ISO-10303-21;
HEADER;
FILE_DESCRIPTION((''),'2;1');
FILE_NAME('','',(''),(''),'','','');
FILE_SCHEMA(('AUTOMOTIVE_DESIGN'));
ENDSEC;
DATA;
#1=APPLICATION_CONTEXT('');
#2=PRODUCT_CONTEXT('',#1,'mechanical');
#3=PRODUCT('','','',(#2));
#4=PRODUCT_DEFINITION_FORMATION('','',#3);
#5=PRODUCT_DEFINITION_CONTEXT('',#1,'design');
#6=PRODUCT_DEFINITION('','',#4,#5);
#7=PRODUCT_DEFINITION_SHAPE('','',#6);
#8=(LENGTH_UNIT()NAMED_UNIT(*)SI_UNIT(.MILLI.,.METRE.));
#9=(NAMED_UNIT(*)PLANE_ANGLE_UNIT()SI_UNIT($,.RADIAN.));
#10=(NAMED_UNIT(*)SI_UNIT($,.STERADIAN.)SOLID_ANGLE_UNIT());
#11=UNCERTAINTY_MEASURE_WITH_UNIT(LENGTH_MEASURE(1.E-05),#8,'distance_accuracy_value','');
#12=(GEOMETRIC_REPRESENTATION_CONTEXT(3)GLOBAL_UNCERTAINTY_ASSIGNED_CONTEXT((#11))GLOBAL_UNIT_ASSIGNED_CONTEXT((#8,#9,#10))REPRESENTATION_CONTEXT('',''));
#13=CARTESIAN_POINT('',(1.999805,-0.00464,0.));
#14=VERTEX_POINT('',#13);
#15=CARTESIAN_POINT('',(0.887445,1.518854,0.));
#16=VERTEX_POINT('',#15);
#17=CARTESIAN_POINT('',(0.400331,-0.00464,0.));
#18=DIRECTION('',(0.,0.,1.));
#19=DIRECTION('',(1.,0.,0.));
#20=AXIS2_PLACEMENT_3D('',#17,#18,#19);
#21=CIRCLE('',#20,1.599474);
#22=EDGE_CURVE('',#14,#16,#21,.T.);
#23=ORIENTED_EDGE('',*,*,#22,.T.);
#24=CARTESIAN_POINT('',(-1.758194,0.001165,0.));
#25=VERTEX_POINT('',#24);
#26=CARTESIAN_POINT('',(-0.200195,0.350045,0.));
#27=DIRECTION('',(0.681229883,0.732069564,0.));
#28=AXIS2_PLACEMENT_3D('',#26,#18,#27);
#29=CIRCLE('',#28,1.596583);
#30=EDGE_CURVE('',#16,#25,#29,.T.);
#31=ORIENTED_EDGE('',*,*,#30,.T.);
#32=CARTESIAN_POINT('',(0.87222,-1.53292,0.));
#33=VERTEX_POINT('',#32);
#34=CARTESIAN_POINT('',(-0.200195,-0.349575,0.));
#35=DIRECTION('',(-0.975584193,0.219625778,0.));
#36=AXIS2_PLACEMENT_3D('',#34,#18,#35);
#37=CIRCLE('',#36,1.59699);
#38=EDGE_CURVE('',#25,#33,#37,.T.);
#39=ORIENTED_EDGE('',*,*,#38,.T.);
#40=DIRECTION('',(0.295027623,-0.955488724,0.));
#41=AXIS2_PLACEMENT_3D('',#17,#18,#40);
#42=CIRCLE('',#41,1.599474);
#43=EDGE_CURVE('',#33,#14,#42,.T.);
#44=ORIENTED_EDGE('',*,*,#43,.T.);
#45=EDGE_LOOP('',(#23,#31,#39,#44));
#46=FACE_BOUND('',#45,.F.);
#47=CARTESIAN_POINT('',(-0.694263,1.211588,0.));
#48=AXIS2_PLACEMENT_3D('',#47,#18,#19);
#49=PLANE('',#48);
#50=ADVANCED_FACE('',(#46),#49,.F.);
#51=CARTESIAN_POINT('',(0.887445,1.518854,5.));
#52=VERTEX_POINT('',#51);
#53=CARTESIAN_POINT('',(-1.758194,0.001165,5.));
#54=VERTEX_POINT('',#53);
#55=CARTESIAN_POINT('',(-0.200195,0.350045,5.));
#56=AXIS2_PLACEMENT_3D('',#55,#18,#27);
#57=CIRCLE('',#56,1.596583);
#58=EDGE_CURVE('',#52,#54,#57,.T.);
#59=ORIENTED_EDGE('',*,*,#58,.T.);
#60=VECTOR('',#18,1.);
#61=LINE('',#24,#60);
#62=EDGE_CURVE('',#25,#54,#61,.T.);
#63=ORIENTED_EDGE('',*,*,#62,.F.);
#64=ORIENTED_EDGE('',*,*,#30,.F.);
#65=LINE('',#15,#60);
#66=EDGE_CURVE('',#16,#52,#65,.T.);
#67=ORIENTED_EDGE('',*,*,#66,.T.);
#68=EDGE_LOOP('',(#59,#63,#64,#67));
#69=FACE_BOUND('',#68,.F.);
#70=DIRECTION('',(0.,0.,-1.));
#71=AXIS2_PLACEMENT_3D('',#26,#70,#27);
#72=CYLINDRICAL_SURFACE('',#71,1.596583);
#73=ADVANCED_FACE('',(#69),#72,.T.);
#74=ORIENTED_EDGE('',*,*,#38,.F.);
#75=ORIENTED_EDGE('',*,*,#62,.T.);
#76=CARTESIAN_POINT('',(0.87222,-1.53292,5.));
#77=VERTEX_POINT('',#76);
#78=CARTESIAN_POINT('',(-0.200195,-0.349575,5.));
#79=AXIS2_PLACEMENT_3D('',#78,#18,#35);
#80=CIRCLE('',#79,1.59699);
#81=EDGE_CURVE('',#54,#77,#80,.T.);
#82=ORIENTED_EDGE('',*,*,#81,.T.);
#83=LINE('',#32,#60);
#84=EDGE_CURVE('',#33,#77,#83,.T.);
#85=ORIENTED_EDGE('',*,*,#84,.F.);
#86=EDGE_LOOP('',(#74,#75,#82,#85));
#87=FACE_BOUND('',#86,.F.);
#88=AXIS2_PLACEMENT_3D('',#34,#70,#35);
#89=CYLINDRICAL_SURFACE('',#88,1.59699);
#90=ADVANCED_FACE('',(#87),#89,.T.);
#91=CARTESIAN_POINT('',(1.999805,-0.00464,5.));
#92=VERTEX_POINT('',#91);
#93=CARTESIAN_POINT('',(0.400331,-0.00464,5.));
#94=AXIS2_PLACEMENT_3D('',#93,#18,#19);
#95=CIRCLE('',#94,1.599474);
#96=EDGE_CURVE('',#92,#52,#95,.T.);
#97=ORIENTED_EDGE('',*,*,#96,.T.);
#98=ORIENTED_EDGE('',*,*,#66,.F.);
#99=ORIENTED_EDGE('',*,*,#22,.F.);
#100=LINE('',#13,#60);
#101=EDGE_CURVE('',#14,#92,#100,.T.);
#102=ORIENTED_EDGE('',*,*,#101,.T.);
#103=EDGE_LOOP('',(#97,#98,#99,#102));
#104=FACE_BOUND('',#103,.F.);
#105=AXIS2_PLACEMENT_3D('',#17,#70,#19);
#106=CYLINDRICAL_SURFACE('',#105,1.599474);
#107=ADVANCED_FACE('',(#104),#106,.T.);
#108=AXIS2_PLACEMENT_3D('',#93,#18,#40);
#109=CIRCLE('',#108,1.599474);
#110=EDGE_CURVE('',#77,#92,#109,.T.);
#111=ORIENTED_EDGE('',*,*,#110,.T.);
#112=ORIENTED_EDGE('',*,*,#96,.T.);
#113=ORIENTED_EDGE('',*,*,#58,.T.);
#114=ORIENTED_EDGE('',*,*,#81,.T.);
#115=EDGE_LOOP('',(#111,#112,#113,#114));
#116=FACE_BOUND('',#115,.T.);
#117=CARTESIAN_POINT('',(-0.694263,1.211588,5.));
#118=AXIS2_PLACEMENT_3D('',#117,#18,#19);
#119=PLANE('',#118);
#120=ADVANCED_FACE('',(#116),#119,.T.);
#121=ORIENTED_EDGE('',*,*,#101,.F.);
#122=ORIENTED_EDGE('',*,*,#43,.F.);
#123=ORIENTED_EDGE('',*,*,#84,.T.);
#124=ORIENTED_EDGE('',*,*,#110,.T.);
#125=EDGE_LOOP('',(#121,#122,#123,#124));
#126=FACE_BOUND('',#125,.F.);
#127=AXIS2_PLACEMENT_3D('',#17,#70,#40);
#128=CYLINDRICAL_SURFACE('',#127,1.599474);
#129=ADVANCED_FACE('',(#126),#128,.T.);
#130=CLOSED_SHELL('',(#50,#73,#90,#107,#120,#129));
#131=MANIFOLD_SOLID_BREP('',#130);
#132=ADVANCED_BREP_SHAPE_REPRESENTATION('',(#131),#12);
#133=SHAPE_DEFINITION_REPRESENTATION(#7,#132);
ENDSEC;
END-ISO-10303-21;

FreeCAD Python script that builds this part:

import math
import FreeCAD as App
import Part
import Sketcher
from FreeCAD import Vector
Q = App.Units.Quantity

doc = App.newDocument("Part")
body = doc.addObject("PartDesign::Body", "Body")

# Sketch on XY plane
sketch1 = body.newObject("Sketcher::SketchObject", "Sketch")
sketch1.AttachmentSupport = (doc.getObject("XY_Plane"), [""])
sketch1.MapMode = "FlatFace"
sketch1.addGeometry([
    Part.ArcOfCircle(Part.Circle(Vector(-0.2, -0.3, 0), Vector(0, 0, 1), 1.6), math.radians(167), math.radians(312)),
    Part.ArcOfCircle(Part.Circle(Vector(0.4, 0, 0), Vector(0, 0, 1), 1.6), math.radians(-73), math.radians(0)),
    Part.ArcOfCircle(Part.Circle(Vector(0.4, 0, 0), Vector(0, 0, 1), 1.6), math.radians(0), math.radians(72)),
    Part.ArcOfCircle(Part.Circle(Vector(-0.2, 0.4, 0), Vector(0, 0, 1), 1.6), math.radians(47), math.radians(193)),
], False)
sketch1.addConstraint([
    Sketcher.Constraint("Coincident", 0, 2, 1, 1),
    Sketcher.Constraint("Tangent", 1, 2, 2, 1),
    Sketcher.Constraint("Coincident", 2, 2, 3, 1),
    Sketcher.Constraint("Coincident", 3, 2, 0, 1),
    Sketcher.Constraint("Equal", 1, 2),
    Sketcher.Constraint("Horizontal", 2, 3, 1, 2),
    Sketcher.Constraint("Vertical", 0, 3, 3, 3),
    Sketcher.Constraint("DistanceX", 0, 3, 1, 2, Q("2.2 mm")),
    Sketcher.Constraint("Radius", 0, Q("1.59699 mm")),
    Sketcher.Constraint("Radius", 1, Q("1.599474 mm")),
    Sketcher.Constraint("Radius", 3, Q("1.596583 mm")),
    Sketcher.Constraint("DistanceX", 3, 2, 3, 3, Q("1.557999 mm")),
    Sketcher.Constraint("DistanceX", -1, 1, 1, 3, Q("0.400331 mm")),
    Sketcher.Constraint("DistanceY", 1, 3, -1, 1, Q("0.00464 mm")),
    Sketcher.Constraint("DistanceX", -1, 1, 0, 2, Q("0.87222 mm")),
])
pad1 = body.newObject("PartDesign::Pad", "Pad")
pad1.Profile = sketch1
pad1.Length = 5

doc.recompute()
